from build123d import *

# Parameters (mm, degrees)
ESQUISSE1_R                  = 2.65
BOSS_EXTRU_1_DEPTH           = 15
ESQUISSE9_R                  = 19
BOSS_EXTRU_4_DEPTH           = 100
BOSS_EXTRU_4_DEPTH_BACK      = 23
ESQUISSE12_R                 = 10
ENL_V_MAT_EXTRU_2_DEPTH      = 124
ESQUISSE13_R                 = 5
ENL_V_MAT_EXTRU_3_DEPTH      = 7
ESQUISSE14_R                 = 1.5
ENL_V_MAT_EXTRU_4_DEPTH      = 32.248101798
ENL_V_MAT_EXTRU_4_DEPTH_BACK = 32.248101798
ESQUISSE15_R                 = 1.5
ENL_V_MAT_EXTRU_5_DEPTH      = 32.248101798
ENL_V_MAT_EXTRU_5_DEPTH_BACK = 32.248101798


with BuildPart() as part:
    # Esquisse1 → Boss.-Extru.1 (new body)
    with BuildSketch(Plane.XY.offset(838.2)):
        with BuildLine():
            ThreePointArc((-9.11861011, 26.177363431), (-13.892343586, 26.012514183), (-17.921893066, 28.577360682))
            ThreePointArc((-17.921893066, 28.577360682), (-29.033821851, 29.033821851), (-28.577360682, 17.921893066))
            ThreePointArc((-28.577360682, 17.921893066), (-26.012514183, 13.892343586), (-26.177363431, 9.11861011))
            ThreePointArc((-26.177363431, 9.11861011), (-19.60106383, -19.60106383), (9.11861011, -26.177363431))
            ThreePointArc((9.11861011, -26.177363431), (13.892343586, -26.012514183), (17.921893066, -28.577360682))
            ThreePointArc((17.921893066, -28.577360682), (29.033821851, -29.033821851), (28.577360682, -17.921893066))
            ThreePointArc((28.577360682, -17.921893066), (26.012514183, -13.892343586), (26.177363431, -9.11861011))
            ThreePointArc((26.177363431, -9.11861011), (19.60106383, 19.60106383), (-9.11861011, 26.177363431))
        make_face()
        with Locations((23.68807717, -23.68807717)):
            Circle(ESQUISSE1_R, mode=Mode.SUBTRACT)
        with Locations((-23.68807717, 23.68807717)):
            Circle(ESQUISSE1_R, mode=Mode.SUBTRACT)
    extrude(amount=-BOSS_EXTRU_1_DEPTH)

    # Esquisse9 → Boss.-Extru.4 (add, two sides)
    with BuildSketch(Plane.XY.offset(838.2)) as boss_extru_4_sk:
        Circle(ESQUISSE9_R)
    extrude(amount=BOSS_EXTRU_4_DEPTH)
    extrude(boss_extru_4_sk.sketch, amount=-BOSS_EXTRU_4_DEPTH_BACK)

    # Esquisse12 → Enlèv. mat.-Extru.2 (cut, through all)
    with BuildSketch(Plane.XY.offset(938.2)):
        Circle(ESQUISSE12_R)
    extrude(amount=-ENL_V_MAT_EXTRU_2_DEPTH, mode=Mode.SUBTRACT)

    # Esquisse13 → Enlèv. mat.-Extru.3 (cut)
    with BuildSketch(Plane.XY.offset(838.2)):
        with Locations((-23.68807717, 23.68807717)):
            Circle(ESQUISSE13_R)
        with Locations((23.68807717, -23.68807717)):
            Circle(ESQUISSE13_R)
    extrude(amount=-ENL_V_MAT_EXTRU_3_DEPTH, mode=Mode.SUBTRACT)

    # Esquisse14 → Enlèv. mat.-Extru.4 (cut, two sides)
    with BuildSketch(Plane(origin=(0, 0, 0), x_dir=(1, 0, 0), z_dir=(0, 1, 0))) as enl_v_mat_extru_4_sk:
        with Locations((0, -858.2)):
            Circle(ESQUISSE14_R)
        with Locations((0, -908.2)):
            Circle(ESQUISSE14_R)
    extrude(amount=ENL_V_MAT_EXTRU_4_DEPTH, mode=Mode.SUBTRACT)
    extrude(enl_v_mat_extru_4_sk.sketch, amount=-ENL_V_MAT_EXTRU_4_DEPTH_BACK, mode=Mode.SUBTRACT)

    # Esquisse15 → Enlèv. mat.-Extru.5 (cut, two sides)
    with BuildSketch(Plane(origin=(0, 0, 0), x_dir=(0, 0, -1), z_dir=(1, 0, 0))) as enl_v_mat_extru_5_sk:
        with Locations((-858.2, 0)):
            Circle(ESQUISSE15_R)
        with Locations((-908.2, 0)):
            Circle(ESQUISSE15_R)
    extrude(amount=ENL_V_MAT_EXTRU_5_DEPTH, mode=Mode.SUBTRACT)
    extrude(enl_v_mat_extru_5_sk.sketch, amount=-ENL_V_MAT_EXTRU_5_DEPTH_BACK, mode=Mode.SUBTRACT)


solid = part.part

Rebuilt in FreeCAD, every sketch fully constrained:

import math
import FreeCAD as App
import Part
import Sketcher
from FreeCAD import Vector
Q = App.Units.Quantity

doc = App.newDocument("Part")
body = doc.addObject("PartDesign::Body", "Body")

# Sketch on XY plane
sketch1 = body.newObject("Sketcher::SketchObject", "Sketch")
sketch1.AttachmentSupport = (doc.getObject("XY_Plane"), [""])
sketch1.MapMode = "FlatFace"
sketch1.AttachmentOffset = App.Placement(Vector(0, 0, 838.2), App.Rotation())
sketch1.addGeometry(Part.ArcOfCircle(Part.Circle(Vector(-11.8, 33.8, 0), Vector(0, 0, 1), 8.1), math.radians(-140), math.radians(-71)), False)
sketch1.addGeometry(Part.ArcOfCircle(Part.Circle(Vector(-23.7, 23.7, 0), Vector(0, 0, 1), 7.6), math.radians(40), math.radians(230)), False)
sketch1.addGeometry(Part.ArcOfCircle(Part.Circle(Vector(-33.8, 11.8, 0), Vector(0, 0, 1), 8.1), math.radians(-19), math.radians(50)), False)
sketch1.addGeometry(Part.ArcOfCircle(Part.Circle(Vector(0, 0, 0), Vector(0, 0, 1), 27.7), math.radians(161), math.radians(289)), False)
sketch1.addGeometry(Part.ArcOfCircle(Part.Circle(Vector(11.8, -33.8, 0), Vector(0, 0, 1), 8.1), math.radians(40), math.radians(109)), False)
sketch1.addGeometry(Part.ArcOfCircle(Part.Circle(Vector(23.7, -23.7, 0), Vector(0, 0, 1), 7.6), math.radians(-140), math.radians(50)), False)
sketch1.addGeometry(Part.ArcOfCircle(Part.Circle(Vector(33.8, -11.8, 0), Vector(0, 0, 1), 8.1), math.radians(161), math.radians(230)), False)
sketch1.addGeometry(Part.ArcOfCircle(Part.Circle(Vector(0, 0, 0), Vector(0, 0, 1), 27.7), math.radians(-19), math.radians(109)), False)
sketch1.addGeometry(Part.Circle(Vector(23.7, -23.7, 0), Vector(0, 0, 1), 2.6), False)
sketch1.addGeometry(Part.Circle(Vector(-23.7, 23.7, 0), Vector(0, 0, 1), 2.6), False)
sketch1.addConstraint(Sketcher.Constraint("Tangent", 0, 1, 1, 1))
sketch1.addConstraint(Sketcher.Constraint("Tangent", 1, 2, 2, 2))
sketch1.addConstraint(Sketcher.Constraint("Tangent", 2, 1, 3, 1))
sketch1.addConstraint(Sketcher.Constraint("Tangent", 3, 2, 4, 2))
sketch1.addConstraint(Sketcher.Constraint("Tangent", 4, 1, 5, 1))
sketch1.addConstraint(Sketcher.Constraint("Tangent", 5, 2, 6, 2))
sketch1.addConstraint(Sketcher.Constraint("Tangent", 6, 1, 7, 1))
sketch1.addConstraint(Sketcher.Constraint("Tangent", 7, 2, 0, 2))
sketch1.addConstraint(Sketcher.Constraint("Coincident", 3, 3, -1, 1))
sketch1.addConstraint(Sketcher.Constraint("Coincident", 7, 3, -1, 1))
sketch1.addConstraint(Sketcher.Constraint("Coincident", 8, 3, 5, 3))
sketch1.addConstraint(Sketcher.Constraint("Coincident", 9, 3, 1, 3))
sketch1.addConstraint(Sketcher.Constraint("Equal", 0, 2))
sketch1.addConstraint(Sketcher.Constraint("Equal", 2, 4))
sketch1.addConstraint(Sketcher.Constraint("Equal", 1, 5))
sketch1.addConstraint(Sketcher.Constraint("Equal", 4, 6))
sketch1.addConstraint(Sketcher.Constraint("Equal", 3, 7))
sketch1.addConstraint(Sketcher.Constraint("Equal", 8, 9))
sketch1.addConstraint(Sketcher.Constraint("Symmetric", 1, 3, 5, 3, -1, 1))
sketch1.addConstraint(Sketcher.Constraint("Diameter", 8, Q("5.3 mm")))
sketch1.addConstraint(Sketcher.Constraint("Radius", 3, Q("27.72009 mm")))
sketch1.addConstraint(Sketcher.Constraint("Radius", 0, Q("8.064026 mm")))
sketch1.addConstraint(Sketcher.Constraint("Radius", 1, Q("7.560025 mm")))
sketch1.addConstraint(Sketcher.Constraint("DistanceX", 2, 3, 0, 3, Q("22.0213 mm")))
sketch1.addConstraint(Sketcher.Constraint("DistanceY", 2, 3, 0, 3, Q("22.0213 mm")))
pad1 = body.newObject("PartDesign::Pad", "Pad")
pad1.Profile = sketch1
pad1.Length = 15
pad1.Reversed = True

# Sketch on XY plane
sketch2 = body.newObject("Sketcher::SketchObject", "Sketch001")
sketch2.AttachmentSupport = (doc.getObject("XY_Plane"), [""])
sketch2.MapMode = "FlatFace"
sketch2.AttachmentOffset = App.Placement(Vector(0, 0, 838.2), App.Rotation())
sketch2.addGeometry(Part.Circle(Vector(0, 0, 0), Vector(0, 0, 1), 19), False)
sketch2.addConstraint(Sketcher.Constraint("Coincident", 0, 3, -1, 1))
sketch2.addConstraint(Sketcher.Constraint("Diameter", 0, Q("38 mm")))
pad2 = body.newObject("PartDesign::Pad", "Pad001")
pad2.Profile = sketch2
pad2.Type = "TwoLengths"
pad2.Length = 100
pad2.Length2 = 23

# Sketch on XY plane
sketch3 = body.newObject("Sketcher::SketchObject", "Sketch002")
sketch3.AttachmentSupport = (doc.getObject("XY_Plane"), [""])
sketch3.MapMode = "FlatFace"
sketch3.AttachmentOffset = App.Placement(Vector(0, 0, 938.2), App.Rotation())
sketch3.addGeometry(Part.Circle(Vector(0, 0, 0), Vector(0, 0, 1), 10), False)
sketch3.addConstraint(Sketcher.Constraint("Coincident", 0, 3, -1, 1))
sketch3.addConstraint(Sketcher.Constraint("Diameter", 0, Q("20 mm")))
pocket1 = body.newObject("PartDesign::Pocket", "Pocket")
pocket1.Profile = sketch3
pocket1.Type = "ThroughAll"

# Sketch on XY plane
sketch4 = body.newObject("Sketcher::SketchObject", "Sketch003")
sketch4.AttachmentSupport = (doc.getObject("XY_Plane"), [""])
sketch4.MapMode = "FlatFace"
sketch4.AttachmentOffset = App.Placement(Vector(0, 0, 838.2), App.Rotation())
sketch4.addGeometry(Part.Circle(Vector(-24, 24, 0), Vector(0, 0, 1), 5), False)
sketch4.addGeometry(Part.Circle(Vector(24, -24, 0), Vector(0, 0, 1), 5), False)
sketch4.addConstraint(Sketcher.Constraint("Equal", 0, 1))
sketch4.addConstraint(Sketcher.Constraint("Symmetric", 0, 3, 1, 3, -1, 1))
sketch4.addConstraint(Sketcher.Constraint("Diameter", 0, Q("10 mm")))
sketch4.addConstraint(Sketcher.Constraint("DistanceX", 0, 3, -1, 1, Q("23.688077 mm")))
sketch4.addConstraint(Sketcher.Constraint("DistanceY", -1, 1, 0, 3, Q("23.688077 mm")))
pocket2 = body.newObject("PartDesign::Pocket", "Pocket001")
pocket2.Profile = sketch4
pocket2.Length = 7

# Sketch on XZ plane
sketch5 = body.newObject("Sketcher::SketchObject", "Sketch004")
sketch5.AttachmentSupport = (doc.getObject("XZ_Plane"), [""])
sketch5.MapMode = "FlatFace"
sketch5.addGeometry(Part.Circle(Vector(0, 858.2, 0), Vector(0, 0, 1), 1.5), False)
sketch5.addGeometry(Part.Circle(Vector(0, 908.2, 0), Vector(0, 0, 1), 1.5), False)
sketch5.addConstraint(Sketcher.Constraint("Equal", 0, 1))
sketch5.addConstraint(Sketcher.Constraint("PointOnObject", 0, 3, -2))
sketch5.addConstraint(Sketcher.Constraint("PointOnObject", 1, 3, -2))
sketch5.addConstraint(Sketcher.Constraint("Diameter", 0, Q("3 mm")))
sketch5.addConstraint(Sketcher.Constraint("DistanceY", 0, 3, 1, 3, Q("50 mm")))
sketch5.addConstraint(Sketcher.Constraint("DistanceY", -1, 1, 0, 3, Q("858.2 mm")))
pocket3 = body.newObject("PartDesign::Pocket", "Pocket002")
pocket3.Profile = sketch5
pocket3.Type = "ThroughAll"
pocket3.Midplane = True

# Sketch on YZ plane
sketch6 = body.newObject("Sketcher::SketchObject", "Sketch005")
sketch6.AttachmentSupport = (doc.getObject("YZ_Plane"), [""])
sketch6.MapMode = "FlatFace"
sketch6.addGeometry(Part.Circle(Vector(0, 858.2, 0), Vector(0, 0, 1), 1.5), False)
sketch6.addGeometry(Part.Circle(Vector(0, 908.2, 0), Vector(0, 0, 1), 1.5), False)
sketch6.addConstraint(Sketcher.Constraint("Equal", 0, 1))
sketch6.addConstraint(Sketcher.Constraint("PointOnObject", 0, 3, -2))
sketch6.addConstraint(Sketcher.Constraint("PointOnObject", 1, 3, -2))
sketch6.addConstraint(Sketcher.Constraint("Diameter", 0, Q("3 mm")))
sketch6.addConstraint(Sketcher.Constraint("DistanceY", 0, 3, 1, 3, Q("50 mm")))
sketch6.addConstraint(Sketcher.Constraint("DistanceY", -1, 1, 0, 3, Q("858.2 mm")))
pocket4 = body.newObject("PartDesign::Pocket", "Pocket003")
pocket4.Profile = sketch6
pocket4.Type = "ThroughAll"
pocket4.Midplane = True

doc.recompute()
